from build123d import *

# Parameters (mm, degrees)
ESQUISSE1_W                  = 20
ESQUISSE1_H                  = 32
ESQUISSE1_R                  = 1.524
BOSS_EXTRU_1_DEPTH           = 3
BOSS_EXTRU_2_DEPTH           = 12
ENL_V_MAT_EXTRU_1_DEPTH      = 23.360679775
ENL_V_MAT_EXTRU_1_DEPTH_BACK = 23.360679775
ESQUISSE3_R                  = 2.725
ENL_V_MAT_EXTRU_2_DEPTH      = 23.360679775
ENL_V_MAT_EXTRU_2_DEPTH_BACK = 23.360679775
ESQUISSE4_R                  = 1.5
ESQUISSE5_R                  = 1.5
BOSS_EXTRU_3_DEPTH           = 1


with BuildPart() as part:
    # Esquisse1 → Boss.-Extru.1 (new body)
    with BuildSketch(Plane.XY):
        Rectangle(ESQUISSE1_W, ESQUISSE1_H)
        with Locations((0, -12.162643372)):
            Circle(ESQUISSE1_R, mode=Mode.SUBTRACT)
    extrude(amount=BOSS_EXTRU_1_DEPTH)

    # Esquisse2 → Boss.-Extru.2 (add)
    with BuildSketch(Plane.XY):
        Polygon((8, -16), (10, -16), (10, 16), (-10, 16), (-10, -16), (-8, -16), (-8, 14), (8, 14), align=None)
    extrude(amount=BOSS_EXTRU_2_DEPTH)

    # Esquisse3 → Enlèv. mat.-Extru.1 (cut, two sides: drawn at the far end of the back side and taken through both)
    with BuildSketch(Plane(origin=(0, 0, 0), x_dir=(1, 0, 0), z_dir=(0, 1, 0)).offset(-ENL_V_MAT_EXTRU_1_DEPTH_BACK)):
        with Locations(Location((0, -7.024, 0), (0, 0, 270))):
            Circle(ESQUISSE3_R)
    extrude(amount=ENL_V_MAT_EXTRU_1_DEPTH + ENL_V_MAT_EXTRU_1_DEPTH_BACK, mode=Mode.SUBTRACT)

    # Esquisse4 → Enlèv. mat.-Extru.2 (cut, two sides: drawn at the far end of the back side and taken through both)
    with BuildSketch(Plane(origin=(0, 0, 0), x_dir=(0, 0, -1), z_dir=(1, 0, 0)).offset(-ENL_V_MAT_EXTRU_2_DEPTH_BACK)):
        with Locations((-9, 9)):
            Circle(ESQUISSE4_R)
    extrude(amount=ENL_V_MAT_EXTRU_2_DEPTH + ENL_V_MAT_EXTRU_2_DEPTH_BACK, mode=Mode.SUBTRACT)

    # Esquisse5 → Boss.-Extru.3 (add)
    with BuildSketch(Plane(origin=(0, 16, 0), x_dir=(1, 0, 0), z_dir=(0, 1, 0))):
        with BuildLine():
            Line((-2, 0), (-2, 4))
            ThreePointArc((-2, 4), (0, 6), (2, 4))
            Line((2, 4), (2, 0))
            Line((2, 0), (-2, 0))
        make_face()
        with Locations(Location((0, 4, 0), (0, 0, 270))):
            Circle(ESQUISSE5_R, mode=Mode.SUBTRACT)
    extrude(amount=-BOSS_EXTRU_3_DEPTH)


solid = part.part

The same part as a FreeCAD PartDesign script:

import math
import FreeCAD as App
import Part
import Sketcher

V = App.Vector
Q = App.Units.Quantity

doc = App.newDocument("Part")
body = doc.addObject("PartDesign::Body", "Body")

sketch1 = doc.addObject("Sketcher::SketchObject", "Sketch")
body.addObject(sketch1)
sketch1.AttachmentSupport = (doc.XY_Plane, [""])
sketch1.MapMode = "FlatFace"
sketch1.addGeometry(Part.LineSegment(V(-10, 16, 0), V(-10, -16, 0)), False)
sketch1.addGeometry(Part.LineSegment(V(-10, -16, 0), V(10, -16, 0)), False)
sketch1.addGeometry(Part.LineSegment(V(10, -16, 0), V(10, 16, 0)), False)
sketch1.addGeometry(Part.LineSegment(V(10, 16, 0), V(-10, 16, 0)), False)
sketch1.addGeometry(Part.Circle(V(0, -12.2, 0), V(0, 0, 1), 1.5), False)
sketch1.addConstraint(Sketcher.Constraint("Coincident", 0, 2, 1, 1))
sketch1.addConstraint(Sketcher.Constraint("Coincident", 1, 2, 2, 1))
sketch1.addConstraint(Sketcher.Constraint("Coincident", 2, 2, 3, 1))
sketch1.addConstraint(Sketcher.Constraint("Coincident", 3, 2, 0, 1))
sketch1.addConstraint(Sketcher.Constraint("Vertical", 0))
sketch1.addConstraint(Sketcher.Constraint("Horizontal", 1))
sketch1.addConstraint(Sketcher.Constraint("Vertical", 2))
sketch1.addConstraint(Sketcher.Constraint("Horizontal", 3))
sketch1.addConstraint(Sketcher.Constraint("Symmetric", 0, 2, 2, 2, -1, 1))
sketch1.addConstraint(Sketcher.Constraint("PointOnObject", 4, 3, -2))
sketch1.addConstraint(Sketcher.Constraint("DistanceX", 1, 1, 1, 2, Q("20 mm")))
sketch1.addConstraint(Sketcher.Constraint("DistanceY", 0, 2, 0, 1, Q("32 mm")))
sketch1.addConstraint(Sketcher.Constraint("Diameter", 4, Q("3.048 mm")))
sketch1.addConstraint(Sketcher.Constraint("DistanceY", 4, 3, -1, 1, Q("12.162643 mm")))
pad1 = doc.addObject("PartDesign::Pad", "Pad")
body.addObject(pad1)
pad1.Profile = sketch1
pad1.Length = 3

sketch2 = doc.addObject("Sketcher::SketchObject", "Sketch001")
body.addObject(sketch2)
sketch2.AttachmentSupport = (doc.XY_Plane, [""])
sketch2.MapMode = "FlatFace"
sketch2.addGeometry(Part.LineSegment(V(8, -16, 0), V(10, -16, 0)), False)
sketch2.addGeometry(Part.LineSegment(V(10, -16, 0), V(10, 16, 0)), False)
sketch2.addGeometry(Part.LineSegment(V(10, 16, 0), V(-10, 16, 0)), False)
sketch2.addGeometry(Part.LineSegment(V(-10, 16, 0), V(-10, -16, 0)), False)
sketch2.addGeometry(Part.LineSegment(V(-10, -16, 0), V(-8, -16, 0)), False)
sketch2.addGeometry(Part.LineSegment(V(-8, -16, 0), V(-8, 14, 0)), False)
sketch2.addGeometry(Part.LineSegment(V(-8, 14, 0), V(8, 14, 0)), False)
sketch2.addGeometry(Part.LineSegment(V(8, 14, 0), V(8, -16, 0)), False)
sketch2.addConstraint(Sketcher.Constraint("Coincident", 0, 2, 1, 1))
sketch2.addConstraint(Sketcher.Constraint("Coincident", 1, 2, 2, 1))
sketch2.addConstraint(Sketcher.Constraint("Coincident", 2, 2, 3, 1))
sketch2.addConstraint(Sketcher.Constraint("Coincident", 3, 2, 4, 1))
sketch2.addConstraint(Sketcher.Constraint("Coincident", 4, 2, 5, 1))
sketch2.addConstraint(Sketcher.Constraint("Coincident", 5, 2, 6, 1))
sketch2.addConstraint(Sketcher.Constraint("Coincident", 6, 2, 7, 1))
sketch2.addConstraint(Sketcher.Constraint("Coincident", 7, 2, 0, 1))
sketch2.addConstraint(Sketcher.Constraint("Horizontal", 0))
sketch2.addConstraint(Sketcher.Constraint("Vertical", 1))
sketch2.addConstraint(Sketcher.Constraint("Horizontal", 2))
sketch2.addConstraint(Sketcher.Constraint("Vertical", 3))
sketch2.addConstraint(Sketcher.Constraint("Horizontal", 4))
sketch2.addConstraint(Sketcher.Constraint("Vertical", 5))
sketch2.addConstraint(Sketcher.Constraint("Horizontal", 6))
sketch2.addConstraint(Sketcher.Constraint("Vertical", 7))
sketch2.addConstraint(Sketcher.Constraint("Symmetric", 0, 2, 2, 2, -1, 1))
sketch2.addConstraint(Sketcher.Constraint("Symmetric", 4, 2, 7, 2, -2))
sketch2.addConstraint(Sketcher.Constraint("DistanceX", 0, 1, 0, 2, Q("2 mm")))
sketch2.addConstraint(Sketcher.Constraint("DistanceX", 2, 2, 2, 1, Q("20 mm")))
sketch2.addConstraint(Sketcher.Constraint("DistanceY", 1, 1, 1, 2, Q("32 mm")))
sketch2.addConstraint(Sketcher.Constraint("DistanceY", 5, 1, 5, 2, Q("30 mm")))
pad2 = doc.addObject("PartDesign::Pad", "Pad001")
body.addObject(pad2)
pad2.Profile = sketch2
pad2.Length = 12

sketch3 = doc.addObject("Sketcher::SketchObject", "Sketch002")
body.addObject(sketch3)
sketch3.AttachmentSupport = (doc.XZ_Plane, [""])
sketch3.MapMode = "FlatFace"
sketch3.addGeometry(Part.Circle(V(0, 7, 0), V(0, 0, 1), 2.7), False)
sketch3.addConstraint(Sketcher.Constraint("PointOnObject", 0, 3, -2))
sketch3.addConstraint(Sketcher.Constraint("Diameter", 0, Q("5.45 mm")))
sketch3.addConstraint(Sketcher.Constraint("DistanceY", -1, 1, 0, 3, Q("7.024 mm")))
pocket1 = doc.addObject("PartDesign::Pocket", "Pocket")
body.addObject(pocket1)
pocket1.Profile = sketch3
pocket1.Type = "ThroughAll"
pocket1.Midplane = True

sketch4 = doc.addObject("Sketcher::SketchObject", "Sketch003")
body.addObject(sketch4)
sketch4.AttachmentSupport = (doc.YZ_Plane, [""])
sketch4.MapMode = "FlatFace"
sketch4.addGeometry(Part.Circle(V(9, 9, 0), V(0, 0, 1), 1.5), False)
sketch4.addConstraint(Sketcher.Constraint("Diameter", 0, Q("3 mm")))
sketch4.addConstraint(Sketcher.Constraint("DistanceX", -1, 1, 0, 3, Q("9 mm")))
sketch4.addConstraint(Sketcher.Constraint("DistanceY", -1, 1, 0, 3, Q("9 mm")))
pocket2 = doc.addObject("PartDesign::Pocket", "Pocket001")
body.addObject(pocket2)
pocket2.Profile = sketch4
pocket2.Type = "ThroughAll"
pocket2.Midplane = True

sketch5 = doc.addObject("Sketcher::SketchObject", "Sketch004")
body.addObject(sketch5)
sketch5.AttachmentSupport = (doc.XZ_Plane, [""])
sketch5.MapMode = "FlatFace"
sketch5.AttachmentOffset = App.Placement(V(0, 0, -16), App.Rotation())
sketch5.addGeometry(Part.LineSegment(V(-2, -4, 0), V(-2, 0, 0)), False)
sketch5.addGeometry(Part.LineSegment(V(-2, 0, 0), V(2, 0, 0)), False)
sketch5.addGeometry(Part.LineSegment(V(2, 0, 0), V(2, -4, 0)), False)
sketch5.addGeometry(Part.ArcOfCircle(Part.Circle(V(0, -4, 0), V(0, 0, 1), 2), math.radians(180), math.radians(360)), False)
sketch5.addGeometry(Part.Circle(V(0, -4, 0), V(0, 0, 1), 1.5), False)
sketch5.addConstraint(Sketcher.Constraint("Coincident", 0, 2, 1, 1))
sketch5.addConstraint(Sketcher.Constraint("Coincident", 1, 2, 2, 1))
sketch5.addConstraint(Sketcher.Constraint("Tangent", 2, 2, 3, 2))
sketch5.addConstraint(Sketcher.Constraint("Tangent", 3, 1, 0, 1))
sketch5.addConstraint(Sketcher.Constraint("Vertical", 0))
sketch5.addConstraint(Sketcher.Constraint("Horizontal", 1))
sketch5.addConstraint(Sketcher.Constraint("Vertical", 2))
sketch5.addConstraint(Sketcher.Constraint("Coincident", 4, 3, 3, 3))
sketch5.addConstraint(Sketcher.Constraint("Symmetric", 0, 2, 1, 2, -1, 1))
sketch5.addConstraint(Sketcher.Constraint("Equal", 1, 0))
sketch5.addConstraint(Sketcher.Constraint("Diameter", 4, Q("3 mm")))
sketch5.addConstraint(Sketcher.Constraint("Radius", 3, Q("2 mm")))
pad3 = doc.addObject("PartDesign::Pad", "Pad002")
body.addObject(pad3)
pad3.Profile = sketch5
pad3.Length = 1

doc.recompute()
